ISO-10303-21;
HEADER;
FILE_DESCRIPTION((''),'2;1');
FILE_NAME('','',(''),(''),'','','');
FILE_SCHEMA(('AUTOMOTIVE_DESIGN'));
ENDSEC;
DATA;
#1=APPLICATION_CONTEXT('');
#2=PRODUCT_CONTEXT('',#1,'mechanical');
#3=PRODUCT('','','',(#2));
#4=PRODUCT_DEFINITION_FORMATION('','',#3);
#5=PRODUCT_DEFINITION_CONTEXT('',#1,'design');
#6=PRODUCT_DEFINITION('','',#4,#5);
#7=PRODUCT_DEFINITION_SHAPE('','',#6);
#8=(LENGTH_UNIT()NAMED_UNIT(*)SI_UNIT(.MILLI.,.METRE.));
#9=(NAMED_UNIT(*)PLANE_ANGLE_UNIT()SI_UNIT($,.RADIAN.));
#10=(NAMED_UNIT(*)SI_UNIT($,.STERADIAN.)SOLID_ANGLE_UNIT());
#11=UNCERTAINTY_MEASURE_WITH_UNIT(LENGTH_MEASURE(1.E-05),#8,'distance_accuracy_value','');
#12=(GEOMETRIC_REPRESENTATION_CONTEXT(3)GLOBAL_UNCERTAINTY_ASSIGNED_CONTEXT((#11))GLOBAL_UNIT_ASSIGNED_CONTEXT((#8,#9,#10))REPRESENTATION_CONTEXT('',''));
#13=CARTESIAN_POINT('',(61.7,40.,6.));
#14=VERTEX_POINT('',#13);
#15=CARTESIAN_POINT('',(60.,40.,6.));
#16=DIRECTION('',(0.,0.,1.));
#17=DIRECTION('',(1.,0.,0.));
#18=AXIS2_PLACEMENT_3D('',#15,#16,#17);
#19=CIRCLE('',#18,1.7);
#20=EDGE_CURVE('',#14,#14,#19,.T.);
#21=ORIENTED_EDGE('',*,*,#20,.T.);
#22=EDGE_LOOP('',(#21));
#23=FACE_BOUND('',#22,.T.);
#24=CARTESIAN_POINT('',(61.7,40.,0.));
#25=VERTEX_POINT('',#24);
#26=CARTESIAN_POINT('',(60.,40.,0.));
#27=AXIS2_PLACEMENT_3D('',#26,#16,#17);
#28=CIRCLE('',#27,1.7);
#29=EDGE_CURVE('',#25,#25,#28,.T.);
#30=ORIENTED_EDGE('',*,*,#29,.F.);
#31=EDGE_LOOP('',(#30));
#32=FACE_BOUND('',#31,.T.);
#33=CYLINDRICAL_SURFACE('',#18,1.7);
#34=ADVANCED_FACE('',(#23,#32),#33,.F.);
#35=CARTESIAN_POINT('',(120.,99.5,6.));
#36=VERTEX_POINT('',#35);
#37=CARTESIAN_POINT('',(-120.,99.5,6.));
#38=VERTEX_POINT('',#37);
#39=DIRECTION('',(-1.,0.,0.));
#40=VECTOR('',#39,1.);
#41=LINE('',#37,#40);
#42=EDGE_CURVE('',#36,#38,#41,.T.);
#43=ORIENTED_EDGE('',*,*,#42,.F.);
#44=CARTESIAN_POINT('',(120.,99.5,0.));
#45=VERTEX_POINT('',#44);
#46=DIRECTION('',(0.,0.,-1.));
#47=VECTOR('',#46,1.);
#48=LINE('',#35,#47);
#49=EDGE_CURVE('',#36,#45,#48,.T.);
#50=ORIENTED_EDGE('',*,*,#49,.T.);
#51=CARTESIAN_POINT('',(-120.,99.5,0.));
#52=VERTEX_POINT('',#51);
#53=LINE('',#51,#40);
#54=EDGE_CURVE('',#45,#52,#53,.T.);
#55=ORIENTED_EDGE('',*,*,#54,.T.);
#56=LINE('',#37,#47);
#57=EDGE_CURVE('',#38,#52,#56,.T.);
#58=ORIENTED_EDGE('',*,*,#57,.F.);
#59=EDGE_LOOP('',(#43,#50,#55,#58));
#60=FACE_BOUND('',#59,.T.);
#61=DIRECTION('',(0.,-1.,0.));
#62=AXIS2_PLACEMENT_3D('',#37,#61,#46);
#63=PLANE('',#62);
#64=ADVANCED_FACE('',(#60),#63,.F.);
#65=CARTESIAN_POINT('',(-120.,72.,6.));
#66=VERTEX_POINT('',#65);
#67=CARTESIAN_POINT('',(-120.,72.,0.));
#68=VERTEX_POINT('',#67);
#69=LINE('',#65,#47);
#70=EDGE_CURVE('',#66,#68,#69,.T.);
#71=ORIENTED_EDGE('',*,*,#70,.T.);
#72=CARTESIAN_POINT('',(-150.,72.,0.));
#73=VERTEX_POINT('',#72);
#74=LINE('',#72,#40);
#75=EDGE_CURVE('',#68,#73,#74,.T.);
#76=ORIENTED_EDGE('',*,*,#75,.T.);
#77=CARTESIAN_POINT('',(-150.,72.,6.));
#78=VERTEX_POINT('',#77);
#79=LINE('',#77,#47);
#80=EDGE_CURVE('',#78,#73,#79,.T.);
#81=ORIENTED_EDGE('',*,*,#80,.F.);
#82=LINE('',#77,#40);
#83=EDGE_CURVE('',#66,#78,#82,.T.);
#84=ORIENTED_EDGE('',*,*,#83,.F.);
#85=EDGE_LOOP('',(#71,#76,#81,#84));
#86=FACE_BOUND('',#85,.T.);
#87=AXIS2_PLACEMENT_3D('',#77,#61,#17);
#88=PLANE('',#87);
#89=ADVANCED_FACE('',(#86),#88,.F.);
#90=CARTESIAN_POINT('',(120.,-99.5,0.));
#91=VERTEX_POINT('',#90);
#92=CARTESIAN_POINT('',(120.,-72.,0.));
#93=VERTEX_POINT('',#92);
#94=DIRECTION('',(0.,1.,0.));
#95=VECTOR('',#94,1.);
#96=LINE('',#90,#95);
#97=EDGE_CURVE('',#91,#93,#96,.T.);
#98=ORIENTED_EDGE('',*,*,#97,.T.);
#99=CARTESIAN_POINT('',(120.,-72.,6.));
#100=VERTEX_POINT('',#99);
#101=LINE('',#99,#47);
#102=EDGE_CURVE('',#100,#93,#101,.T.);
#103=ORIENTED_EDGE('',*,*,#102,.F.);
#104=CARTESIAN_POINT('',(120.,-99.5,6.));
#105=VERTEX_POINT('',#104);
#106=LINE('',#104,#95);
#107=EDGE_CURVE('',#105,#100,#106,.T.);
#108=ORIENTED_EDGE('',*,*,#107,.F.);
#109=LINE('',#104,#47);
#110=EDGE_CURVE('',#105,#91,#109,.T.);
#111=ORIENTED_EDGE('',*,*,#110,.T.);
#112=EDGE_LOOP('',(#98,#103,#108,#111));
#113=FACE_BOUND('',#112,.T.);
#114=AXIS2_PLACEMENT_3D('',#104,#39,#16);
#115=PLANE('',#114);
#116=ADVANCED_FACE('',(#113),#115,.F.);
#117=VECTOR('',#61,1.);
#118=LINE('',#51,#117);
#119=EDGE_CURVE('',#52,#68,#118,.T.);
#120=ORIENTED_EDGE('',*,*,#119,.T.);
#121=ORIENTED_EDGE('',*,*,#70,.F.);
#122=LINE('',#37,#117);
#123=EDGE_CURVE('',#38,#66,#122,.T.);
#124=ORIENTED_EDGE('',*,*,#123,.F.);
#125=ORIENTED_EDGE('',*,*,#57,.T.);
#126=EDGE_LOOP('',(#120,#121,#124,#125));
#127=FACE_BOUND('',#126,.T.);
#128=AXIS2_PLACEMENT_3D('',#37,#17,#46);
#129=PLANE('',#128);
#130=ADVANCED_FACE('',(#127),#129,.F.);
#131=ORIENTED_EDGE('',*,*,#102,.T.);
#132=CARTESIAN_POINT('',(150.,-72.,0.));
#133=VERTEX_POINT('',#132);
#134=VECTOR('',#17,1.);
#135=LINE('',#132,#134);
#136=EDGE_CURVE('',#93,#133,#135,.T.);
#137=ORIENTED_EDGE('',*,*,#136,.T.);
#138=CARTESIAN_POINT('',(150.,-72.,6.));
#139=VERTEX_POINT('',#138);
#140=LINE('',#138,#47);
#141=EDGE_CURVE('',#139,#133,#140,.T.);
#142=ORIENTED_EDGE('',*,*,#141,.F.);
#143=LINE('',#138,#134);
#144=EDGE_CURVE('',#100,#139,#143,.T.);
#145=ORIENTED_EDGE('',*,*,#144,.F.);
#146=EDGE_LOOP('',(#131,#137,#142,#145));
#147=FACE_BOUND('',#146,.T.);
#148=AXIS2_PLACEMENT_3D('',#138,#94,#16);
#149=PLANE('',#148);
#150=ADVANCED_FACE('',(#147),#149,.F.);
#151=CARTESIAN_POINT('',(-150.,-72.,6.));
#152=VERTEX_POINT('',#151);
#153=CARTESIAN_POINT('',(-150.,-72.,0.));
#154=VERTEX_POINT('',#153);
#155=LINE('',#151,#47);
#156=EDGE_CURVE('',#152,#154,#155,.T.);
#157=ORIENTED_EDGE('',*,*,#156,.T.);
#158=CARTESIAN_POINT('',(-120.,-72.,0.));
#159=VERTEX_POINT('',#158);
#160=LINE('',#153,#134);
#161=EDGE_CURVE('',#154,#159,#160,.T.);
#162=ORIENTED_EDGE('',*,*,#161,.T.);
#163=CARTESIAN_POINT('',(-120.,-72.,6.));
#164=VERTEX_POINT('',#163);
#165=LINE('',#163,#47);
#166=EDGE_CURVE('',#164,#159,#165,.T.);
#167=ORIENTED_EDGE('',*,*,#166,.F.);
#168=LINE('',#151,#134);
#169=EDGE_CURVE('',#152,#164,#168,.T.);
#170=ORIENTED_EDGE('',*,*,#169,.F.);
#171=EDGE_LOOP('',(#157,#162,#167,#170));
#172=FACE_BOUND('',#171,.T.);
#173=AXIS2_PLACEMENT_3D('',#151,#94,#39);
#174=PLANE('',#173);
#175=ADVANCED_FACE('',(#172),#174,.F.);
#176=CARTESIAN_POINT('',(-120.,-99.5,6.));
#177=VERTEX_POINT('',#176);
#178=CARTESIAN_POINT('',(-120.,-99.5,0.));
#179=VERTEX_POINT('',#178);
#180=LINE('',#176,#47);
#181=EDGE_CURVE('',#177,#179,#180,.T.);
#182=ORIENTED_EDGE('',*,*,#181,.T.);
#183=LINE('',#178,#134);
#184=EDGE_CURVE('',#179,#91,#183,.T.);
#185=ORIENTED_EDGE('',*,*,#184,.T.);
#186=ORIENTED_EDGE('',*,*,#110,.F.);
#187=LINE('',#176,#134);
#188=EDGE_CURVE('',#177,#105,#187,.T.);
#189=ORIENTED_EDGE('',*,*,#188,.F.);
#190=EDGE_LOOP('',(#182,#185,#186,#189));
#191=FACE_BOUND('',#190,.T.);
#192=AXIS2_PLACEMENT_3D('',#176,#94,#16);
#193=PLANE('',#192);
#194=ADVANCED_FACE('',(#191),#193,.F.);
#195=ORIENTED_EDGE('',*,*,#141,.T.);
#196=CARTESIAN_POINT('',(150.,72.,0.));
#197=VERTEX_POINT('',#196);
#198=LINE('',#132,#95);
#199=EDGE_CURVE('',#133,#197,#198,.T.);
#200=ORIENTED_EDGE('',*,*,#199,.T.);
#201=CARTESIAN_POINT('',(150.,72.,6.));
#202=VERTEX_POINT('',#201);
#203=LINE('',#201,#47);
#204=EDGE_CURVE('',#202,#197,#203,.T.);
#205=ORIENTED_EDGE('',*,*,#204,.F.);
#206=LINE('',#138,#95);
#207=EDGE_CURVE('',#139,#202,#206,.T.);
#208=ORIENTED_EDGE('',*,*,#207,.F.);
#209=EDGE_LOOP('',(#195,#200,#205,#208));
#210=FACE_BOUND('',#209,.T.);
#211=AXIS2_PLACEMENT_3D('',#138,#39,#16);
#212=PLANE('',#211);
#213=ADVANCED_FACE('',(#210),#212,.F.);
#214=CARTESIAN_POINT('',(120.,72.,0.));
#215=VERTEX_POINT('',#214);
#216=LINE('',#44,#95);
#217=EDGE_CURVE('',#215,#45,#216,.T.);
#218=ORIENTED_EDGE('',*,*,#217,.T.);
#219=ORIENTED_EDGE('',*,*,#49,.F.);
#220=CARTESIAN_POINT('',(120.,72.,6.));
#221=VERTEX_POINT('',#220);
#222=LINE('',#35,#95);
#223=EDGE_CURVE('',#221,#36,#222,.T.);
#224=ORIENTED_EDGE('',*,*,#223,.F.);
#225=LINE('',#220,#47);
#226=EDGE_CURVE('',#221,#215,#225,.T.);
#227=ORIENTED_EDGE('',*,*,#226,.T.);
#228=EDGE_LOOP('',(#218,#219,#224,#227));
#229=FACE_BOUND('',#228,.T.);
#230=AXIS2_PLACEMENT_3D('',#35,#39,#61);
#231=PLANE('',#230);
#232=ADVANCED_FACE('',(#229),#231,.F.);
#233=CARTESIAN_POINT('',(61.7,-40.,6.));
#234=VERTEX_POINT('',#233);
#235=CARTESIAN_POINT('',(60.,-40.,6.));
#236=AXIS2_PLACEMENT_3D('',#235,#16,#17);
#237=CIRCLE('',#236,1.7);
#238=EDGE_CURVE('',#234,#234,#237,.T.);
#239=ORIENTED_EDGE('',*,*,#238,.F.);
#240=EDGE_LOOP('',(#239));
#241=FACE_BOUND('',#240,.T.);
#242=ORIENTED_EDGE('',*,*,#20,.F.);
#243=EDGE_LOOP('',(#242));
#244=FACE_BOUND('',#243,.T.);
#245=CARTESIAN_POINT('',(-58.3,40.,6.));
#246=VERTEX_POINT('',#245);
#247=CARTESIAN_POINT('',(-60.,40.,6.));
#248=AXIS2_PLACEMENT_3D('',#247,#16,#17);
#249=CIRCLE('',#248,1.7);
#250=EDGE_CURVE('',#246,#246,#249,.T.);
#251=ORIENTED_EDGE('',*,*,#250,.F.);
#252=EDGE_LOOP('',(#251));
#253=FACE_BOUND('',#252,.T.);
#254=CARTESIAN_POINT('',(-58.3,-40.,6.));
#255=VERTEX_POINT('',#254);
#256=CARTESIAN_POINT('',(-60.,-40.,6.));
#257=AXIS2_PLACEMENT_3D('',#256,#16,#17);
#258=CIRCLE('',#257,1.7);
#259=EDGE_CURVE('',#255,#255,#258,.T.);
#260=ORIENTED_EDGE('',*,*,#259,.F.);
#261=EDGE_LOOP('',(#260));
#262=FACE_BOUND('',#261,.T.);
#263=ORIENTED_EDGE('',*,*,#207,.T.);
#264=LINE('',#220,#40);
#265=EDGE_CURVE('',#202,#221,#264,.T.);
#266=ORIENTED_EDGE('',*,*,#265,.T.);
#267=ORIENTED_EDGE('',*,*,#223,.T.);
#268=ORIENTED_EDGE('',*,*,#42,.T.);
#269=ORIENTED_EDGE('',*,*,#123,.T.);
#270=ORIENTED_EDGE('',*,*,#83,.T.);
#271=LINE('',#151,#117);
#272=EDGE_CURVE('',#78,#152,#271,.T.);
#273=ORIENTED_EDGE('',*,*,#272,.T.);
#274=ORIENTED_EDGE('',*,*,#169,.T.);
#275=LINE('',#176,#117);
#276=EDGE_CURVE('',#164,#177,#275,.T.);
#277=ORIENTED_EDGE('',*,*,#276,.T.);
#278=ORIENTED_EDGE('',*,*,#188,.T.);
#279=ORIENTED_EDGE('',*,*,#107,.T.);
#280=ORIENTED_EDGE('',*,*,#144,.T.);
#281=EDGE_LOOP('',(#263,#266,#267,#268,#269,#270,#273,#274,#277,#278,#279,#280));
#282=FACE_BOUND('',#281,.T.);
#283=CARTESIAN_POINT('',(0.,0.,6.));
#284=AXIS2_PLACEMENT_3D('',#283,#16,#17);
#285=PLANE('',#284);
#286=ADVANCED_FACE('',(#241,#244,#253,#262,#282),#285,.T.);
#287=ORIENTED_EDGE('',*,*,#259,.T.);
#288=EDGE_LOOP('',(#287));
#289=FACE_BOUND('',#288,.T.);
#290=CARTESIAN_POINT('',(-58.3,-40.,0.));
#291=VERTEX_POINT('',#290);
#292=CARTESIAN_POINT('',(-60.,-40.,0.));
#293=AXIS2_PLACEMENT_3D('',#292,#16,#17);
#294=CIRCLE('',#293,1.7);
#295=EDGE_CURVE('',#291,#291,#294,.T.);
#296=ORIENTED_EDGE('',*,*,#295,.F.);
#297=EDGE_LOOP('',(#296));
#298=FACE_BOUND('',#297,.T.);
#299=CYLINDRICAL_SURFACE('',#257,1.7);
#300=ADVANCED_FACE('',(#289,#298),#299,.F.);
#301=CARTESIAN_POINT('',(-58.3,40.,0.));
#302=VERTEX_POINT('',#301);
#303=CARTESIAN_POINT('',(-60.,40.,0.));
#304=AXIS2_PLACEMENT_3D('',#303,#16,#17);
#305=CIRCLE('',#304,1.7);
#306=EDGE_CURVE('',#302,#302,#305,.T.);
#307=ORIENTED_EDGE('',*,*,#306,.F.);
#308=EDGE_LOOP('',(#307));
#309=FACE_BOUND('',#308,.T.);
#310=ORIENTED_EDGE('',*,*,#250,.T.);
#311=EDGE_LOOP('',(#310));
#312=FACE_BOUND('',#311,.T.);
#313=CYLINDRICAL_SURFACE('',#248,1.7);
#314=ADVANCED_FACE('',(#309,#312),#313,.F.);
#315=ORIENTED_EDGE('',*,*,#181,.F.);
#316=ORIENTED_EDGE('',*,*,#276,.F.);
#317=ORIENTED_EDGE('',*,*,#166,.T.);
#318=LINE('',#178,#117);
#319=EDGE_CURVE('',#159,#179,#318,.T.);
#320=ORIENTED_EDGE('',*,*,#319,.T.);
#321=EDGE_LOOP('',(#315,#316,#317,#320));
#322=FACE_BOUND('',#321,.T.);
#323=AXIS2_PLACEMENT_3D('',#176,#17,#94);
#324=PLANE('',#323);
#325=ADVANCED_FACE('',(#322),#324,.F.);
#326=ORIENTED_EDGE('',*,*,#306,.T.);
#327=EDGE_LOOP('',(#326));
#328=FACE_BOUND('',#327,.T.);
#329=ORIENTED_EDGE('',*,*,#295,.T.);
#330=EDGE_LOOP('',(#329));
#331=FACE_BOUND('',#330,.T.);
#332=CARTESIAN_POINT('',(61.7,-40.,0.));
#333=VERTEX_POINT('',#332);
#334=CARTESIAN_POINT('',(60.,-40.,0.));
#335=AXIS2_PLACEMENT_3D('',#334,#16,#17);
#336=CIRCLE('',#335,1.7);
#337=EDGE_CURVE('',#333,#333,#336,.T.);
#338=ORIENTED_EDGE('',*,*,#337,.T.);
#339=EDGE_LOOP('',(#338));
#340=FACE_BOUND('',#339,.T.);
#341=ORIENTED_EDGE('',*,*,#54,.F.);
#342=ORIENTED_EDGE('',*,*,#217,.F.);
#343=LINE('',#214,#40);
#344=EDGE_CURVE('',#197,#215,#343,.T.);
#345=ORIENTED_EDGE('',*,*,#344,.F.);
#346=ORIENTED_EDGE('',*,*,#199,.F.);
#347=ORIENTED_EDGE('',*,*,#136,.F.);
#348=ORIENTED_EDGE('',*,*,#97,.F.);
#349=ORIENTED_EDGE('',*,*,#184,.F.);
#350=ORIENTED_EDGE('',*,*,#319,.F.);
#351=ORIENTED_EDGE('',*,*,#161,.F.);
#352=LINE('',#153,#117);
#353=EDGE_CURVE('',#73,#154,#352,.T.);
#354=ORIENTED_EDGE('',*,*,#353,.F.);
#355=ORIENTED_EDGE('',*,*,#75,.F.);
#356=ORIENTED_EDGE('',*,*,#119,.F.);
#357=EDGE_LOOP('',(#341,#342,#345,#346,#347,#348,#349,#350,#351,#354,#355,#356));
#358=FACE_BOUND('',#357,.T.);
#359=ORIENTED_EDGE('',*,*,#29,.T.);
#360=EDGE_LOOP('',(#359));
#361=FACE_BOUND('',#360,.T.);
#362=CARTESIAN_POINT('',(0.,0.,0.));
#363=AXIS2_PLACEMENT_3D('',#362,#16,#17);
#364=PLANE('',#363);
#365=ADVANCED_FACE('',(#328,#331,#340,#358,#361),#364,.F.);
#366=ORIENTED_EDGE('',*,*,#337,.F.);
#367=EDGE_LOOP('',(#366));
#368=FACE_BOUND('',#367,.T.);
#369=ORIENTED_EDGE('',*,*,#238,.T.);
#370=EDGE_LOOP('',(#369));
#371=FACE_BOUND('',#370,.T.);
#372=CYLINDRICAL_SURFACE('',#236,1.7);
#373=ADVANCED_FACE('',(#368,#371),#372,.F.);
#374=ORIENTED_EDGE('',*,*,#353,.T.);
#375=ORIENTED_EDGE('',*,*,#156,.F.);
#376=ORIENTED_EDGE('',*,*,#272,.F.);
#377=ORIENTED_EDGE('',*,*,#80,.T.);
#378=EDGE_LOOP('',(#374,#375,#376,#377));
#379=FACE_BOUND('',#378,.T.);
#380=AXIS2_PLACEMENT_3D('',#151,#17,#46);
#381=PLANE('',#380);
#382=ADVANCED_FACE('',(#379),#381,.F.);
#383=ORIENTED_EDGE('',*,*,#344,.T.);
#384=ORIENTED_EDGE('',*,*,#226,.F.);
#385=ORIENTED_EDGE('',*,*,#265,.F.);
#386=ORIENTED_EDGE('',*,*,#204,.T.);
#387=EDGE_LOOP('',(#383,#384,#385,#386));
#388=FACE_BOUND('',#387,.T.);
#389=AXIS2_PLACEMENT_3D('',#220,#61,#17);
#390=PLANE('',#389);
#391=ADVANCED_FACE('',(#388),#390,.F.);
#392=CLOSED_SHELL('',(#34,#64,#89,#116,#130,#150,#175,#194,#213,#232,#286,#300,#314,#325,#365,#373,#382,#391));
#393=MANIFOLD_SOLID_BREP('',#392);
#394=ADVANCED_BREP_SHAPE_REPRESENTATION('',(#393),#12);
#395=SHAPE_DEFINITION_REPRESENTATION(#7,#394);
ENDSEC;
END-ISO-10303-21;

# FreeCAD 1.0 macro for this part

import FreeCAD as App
import Part
import Sketcher

V = App.Vector

doc = App.newDocument("Part")
body = doc.addObject("PartDesign::Body", "Body")

# Sketch on XY plane
sketch1 = body.newObject("Sketcher::SketchObject", "Sketch")
sketch1.AttachmentSupport = (doc.getObject("XY_Plane"), [""])
sketch1.MapMode = "FlatFace"
sketch1.addGeometry([
    Part.LineSegment(V(150, 72, 0), V(120, 72, 0)),  # 0
    Part.LineSegment(V(120, 72, 0), V(120, 100, 0)),  # 1
    Part.LineSegment(V(120, 100, 0), V(-120, 100, 0)),  # 2
    Part.LineSegment(V(-120, 100, 0), V(-120, 72, 0)),  # 3
    Part.LineSegment(V(-120, 72, 0), V(-150, 72, 0)),  # 4
    Part.LineSegment(V(-150, 72, 0), V(-150, -72, 0)),  # 5
    Part.LineSegment(V(-150, -72, 0), V(-120, -72, 0)),  # 6
    Part.LineSegment(V(-120, -72, 0), V(-120, -100, 0)),  # 7
    Part.LineSegment(V(-120, -100, 0), V(120, -100, 0)),  # 8
    Part.LineSegment(V(120, -100, 0), V(120, -72, 0)),  # 9
    Part.LineSegment(V(120, -72, 0), V(150, -72, 0)),  # 10
    Part.LineSegment(V(150, -72, 0), V(150, 72, 0)),  # 11
], False)
sketch1.addConstraint([
    Sketcher.Constraint("Coincident", 0, 2, 1, 1),
    Sketcher.Constraint("Coincident", 1, 2, 2, 1),
    Sketcher.Constraint("Coincident", 2, 2, 3, 1),
    Sketcher.Constraint("Coincident", 3, 2, 4, 1),
    Sketcher.Constraint("Coincident", 4, 2, 5, 1),
    Sketcher.Constraint("Coincident", 5, 2, 6, 1),
    Sketcher.Constraint("Coincident", 6, 2, 7, 1),
    Sketcher.Constraint("Coincident", 7, 2, 8, 1),
    Sketcher.Constraint("Coincident", 8, 2, 9, 1),
    Sketcher.Constraint("Coincident", 9, 2, 10, 1),
    Sketcher.Constraint("Coincident", 10, 2, 11, 1),
    Sketcher.Constraint("Coincident", 11, 2, 0, 1),
    Sketcher.Constraint("Horizontal", 0),
    Sketcher.Constraint("Vertical", 1),
    Sketcher.Constraint("Horizontal", 2),
    Sketcher.Constraint("Vertical", 3),
    Sketcher.Constraint("Horizontal", 4),
    Sketcher.Constraint("Vertical", 5),
    Sketcher.Constraint("Horizontal", 6),
    Sketcher.Constraint("Vertical", 7),
    Sketcher.Constraint("Horizontal", 8),
    Sketcher.Constraint("Vertical", 9),
    Sketcher.Constraint("Horizontal", 10),
    Sketcher.Constraint("Vertical", 11),
    Sketcher.Constraint("Symmetric", 0, 2, 6, 2, -1, 1),
    Sketcher.Constraint("Symmetric", 2, 2, 8, 2, -1, 1),
    Sketcher.Constraint("Symmetric", 4, 2, 10, 2, -1, 1),
    Sketcher.Constraint("Symmetric", 0, 2, 3, 2, -2),
    Sketcher.Constraint("DistanceX", 0, 2, 0, 1, 30.0),
    Sketcher.Constraint("DistanceX", 2, 2, 2, 1, 240.0),
    Sketcher.Constraint("DistanceY", 5, 2, 5, 1, 144.0),
    Sketcher.Constraint("DistanceY", 1, 1, 1, 2, 27.5),
])
pad1 = body.newObject("PartDesign::Pad", "Pad")
pad1.Profile = sketch1
pad1.Length = 6

# Sketch on XY plane
sketch2 = body.newObject("Sketcher::SketchObject", "Sketch001")
sketch2.AttachmentSupport = (doc.getObject("XY_Plane"), [""])
sketch2.MapMode = "FlatFace"
sketch2.AttachmentOffset = App.Placement(V(0, 0, 6), App.Rotation())
sketch2.addGeometry([
    Part.Circle(V(-60, 40, 0), V(0, 0, 1), 1.7),
    Part.Circle(V(-60, -40, 0), V(0, 0, 1), 1.7),
    Part.Circle(V(60, -40, 0), V(0, 0, 1), 1.7),
    Part.Circle(V(60, 40, 0), V(0, 0, 1), 1.7),
], False)
sketch2.addConstraint([
    Sketcher.Constraint("Equal", 0, 1),
    Sketcher.Constraint("Equal", 1, 2),
    Sketcher.Constraint("Equal", 2, 3),
    Sketcher.Constraint("Symmetric", 0, 3, 2, 3, -1, 1),
    Sketcher.Constraint("Symmetric", 1, 3, 3, 3, -1, 1),
    Sketcher.Constraint("Symmetric", 1, 3, 2, 3, -2),
    Sketcher.Constraint("Diameter", 0, 3.4),
    Sketcher.Constraint("DistanceX", 0, 3, -1, 1, 60.0),
    Sketcher.Constraint("DistanceY", -1, 1, 0, 3, 40.0),
])
doc.recompute()
hole = body.newObject("PartDesign::Hole", "Hole")
hole.Profile = sketch2
hole.ThreadType = "None"
hole.Diameter = 3.4
hole.DepthType = "ThroughAll"

doc.recompute()
